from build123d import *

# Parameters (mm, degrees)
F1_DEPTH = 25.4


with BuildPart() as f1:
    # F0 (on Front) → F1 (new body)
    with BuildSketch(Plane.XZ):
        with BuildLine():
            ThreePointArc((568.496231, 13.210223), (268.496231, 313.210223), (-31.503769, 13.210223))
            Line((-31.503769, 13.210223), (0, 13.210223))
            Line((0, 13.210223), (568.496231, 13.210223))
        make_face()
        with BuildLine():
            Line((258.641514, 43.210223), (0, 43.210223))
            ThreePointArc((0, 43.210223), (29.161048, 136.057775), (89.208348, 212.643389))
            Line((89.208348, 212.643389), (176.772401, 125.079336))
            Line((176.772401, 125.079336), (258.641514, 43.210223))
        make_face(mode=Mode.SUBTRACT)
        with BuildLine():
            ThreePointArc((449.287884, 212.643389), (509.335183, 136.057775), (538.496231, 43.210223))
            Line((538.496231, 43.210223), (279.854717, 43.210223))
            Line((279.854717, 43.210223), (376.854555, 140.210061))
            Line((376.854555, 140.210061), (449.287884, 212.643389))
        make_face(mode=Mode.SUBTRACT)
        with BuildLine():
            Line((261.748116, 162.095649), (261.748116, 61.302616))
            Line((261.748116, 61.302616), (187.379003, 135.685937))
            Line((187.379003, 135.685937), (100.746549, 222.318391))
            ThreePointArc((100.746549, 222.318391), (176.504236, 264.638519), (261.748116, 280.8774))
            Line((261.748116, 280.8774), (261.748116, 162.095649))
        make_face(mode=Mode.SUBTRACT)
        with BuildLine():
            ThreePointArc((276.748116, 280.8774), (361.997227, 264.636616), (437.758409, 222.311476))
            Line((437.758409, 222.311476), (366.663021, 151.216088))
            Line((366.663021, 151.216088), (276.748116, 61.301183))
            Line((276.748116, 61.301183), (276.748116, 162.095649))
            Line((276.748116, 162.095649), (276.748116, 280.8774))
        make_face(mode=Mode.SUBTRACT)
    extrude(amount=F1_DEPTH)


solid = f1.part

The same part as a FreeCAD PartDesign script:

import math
import FreeCAD as App
import Part
import Sketcher
from FreeCAD import Vector
Q = App.Units.Quantity

doc = App.newDocument("Part")
body = doc.addObject("PartDesign::Body", "Body")

# Sketch on XZ plane
sketch1 = body.newObject("Sketcher::SketchObject", "Sketch")
sketch1.AttachmentSupport = (doc.getObject("XZ_Plane"), [""])
sketch1.MapMode = "FlatFace"
sketch1.addGeometry([
    Part.ArcOfCircle(Part.Circle(Vector(268, 13, 0), Vector(0, 0, 1), 300), math.radians(0), math.radians(180)),  # 0
    Part.LineSegment(Vector(-32, 13, 0), Vector(568, 13, 0)),  # 1
    Part.LineSegment(Vector(89, 213, 0), Vector(259, 43, 0)),  # 2
    Part.LineSegment(Vector(259, 43, 0), Vector(0, 43, 0)),  # 3
    Part.ArcOfCircle(Part.Circle(Vector(269, 10, 0), Vector(0, 0, 1), 271), math.radians(132), math.radians(173)),  # 4
    Part.LineSegment(Vector(377, 140, 0), Vector(449, 213, 0)),  # 5
    Part.ArcOfCircle(Part.Circle(Vector(269, 10, 0), Vector(0, 0, 1), 271), math.radians(7), math.radians(48)),  # 6
    Part.LineSegment(Vector(538, 43, 0), Vector(280, 43, 0)),  # 7
    Part.LineSegment(Vector(280, 43, 0), Vector(377, 140, 0)),  # 8
    Part.LineSegment(Vector(262, 281, 0), Vector(262, 61, 0)),  # 9
    Part.LineSegment(Vector(262, 61, 0), Vector(187, 136, 0)),  # 10
    Part.LineSegment(Vector(187, 136, 0), Vector(101, 222, 0)),  # 11
    Part.ArcOfCircle(Part.Circle(Vector(269, 10, 0), Vector(0, 0, 1), 271), math.radians(92), math.radians(128)),  # 12
    Part.LineSegment(Vector(277, 61, 0), Vector(277, 281, 0)),  # 13
    Part.ArcOfCircle(Part.Circle(Vector(269, 10, 0), Vector(0, 0, 1), 271), math.radians(52), math.radians(88)),  # 14
    Part.LineSegment(Vector(438, 222, 0), Vector(277, 61, 0)),  # 15
], False)
sketch1.addConstraint([
    Sketcher.Constraint("Coincident", 0, 1, 1, 2),
    Sketcher.Constraint("Coincident", 1, 1, 0, 2),
    Sketcher.Constraint("Coincident", 2, 2, 3, 1),
    Sketcher.Constraint("Coincident", 3, 2, 4, 2),
    Sketcher.Constraint("Coincident", 4, 1, 2, 1),
    Sketcher.Constraint("Coincident", 5, 2, 6, 2),
    Sketcher.Constraint("Coincident", 6, 1, 7, 1),
    Sketcher.Constraint("Coincident", 7, 2, 8, 1),
    Sketcher.Constraint("Coincident", 8, 2, 5, 1),
    Sketcher.Constraint("Coincident", 9, 2, 10, 1),
    Sketcher.Constraint("Coincident", 10, 2, 11, 1),
    Sketcher.Constraint("Coincident", 11, 2, 12, 2),
    Sketcher.Constraint("Coincident", 12, 1, 9, 1),
    Sketcher.Constraint("Coincident", 13, 2, 14, 2),
    Sketcher.Constraint("Coincident", 14, 1, 15, 1),
    Sketcher.Constraint("Coincident", 15, 2, 13, 1),
    Sketcher.Constraint("Horizontal", 1),
    Sketcher.Constraint("Horizontal", 3),
    Sketcher.Constraint("Horizontal", 7),
    Sketcher.Constraint("Vertical", 9),
    Sketcher.Constraint("Vertical", 13),
    Sketcher.Constraint("Coincident", 6, 3, 4, 3),
    Sketcher.Constraint("Coincident", 12, 3, 4, 3),
    Sketcher.Constraint("Coincident", 14, 3, 4, 3),
    Sketcher.Constraint("Equal", 12, 14),
    Sketcher.Constraint("PointOnObject", 3, 2, -2),
    Sketcher.Constraint("Perpendicular", 2, 5),
    Sketcher.Constraint("Parallel", 5, 8),
    Sketcher.Constraint("Perpendicular", 8, 11),
    Sketcher.Constraint("Perpendicular", 11, 15),
    Sketcher.Constraint("Horizontal", 4, 1, 5, 2),
    Sketcher.Constraint("Horizontal", 3, 2, 6, 1),
    Sketcher.Constraint("Horizontal", 12, 1, 13, 2),
    Sketcher.Constraint("Equal", 3, 7),
    Sketcher.Constraint("Radius", 0, 300.0),
    Sketcher.Constraint("Angle", 2, Q("-45 deg")),
    Sketcher.Constraint("DistanceY", 0, 3, 2, 2, 30.0),
    Sketcher.Constraint("DistanceY", 1, 1, 3, 2, 30.0),
    Sketcher.Constraint("DistanceX", 6, 1, 0, 1, 30.0),
    Sketcher.Constraint("DistanceX", 12, 1, 13, 2, 15.0),
    Sketcher.Constraint("Radius", 6, 271.331672),
    Sketcher.Constraint("Radius", 12, 271.331669),
    Sketcher.Constraint("DistanceY", -1, 1, 12, 1, 280.8774),
    Sketcher.Constraint("DistanceX", 2, 2, 12, 3, 10.6066),
    Sketcher.Constraint("DistanceX", 4, 1, 11, 2, 11.538201),
    Sketcher.Constraint("Distance", 2, 239.614681),
    Sketcher.Constraint("Distance", 11, 122.516791),
    Sketcher.Constraint("Distance", 15, 227.70294),
    Sketcher.Constraint("DistanceY", 9, 2, 9, 1, 219.574784),
    Sketcher.Constraint("DistanceY", -1, 1, 8, 2, 140.210061),
])
pad1 = body.newObject("PartDesign::Pad", "Pad")
pad1.Profile = sketch1
pad1.Length = 25.4

doc.recompute()
